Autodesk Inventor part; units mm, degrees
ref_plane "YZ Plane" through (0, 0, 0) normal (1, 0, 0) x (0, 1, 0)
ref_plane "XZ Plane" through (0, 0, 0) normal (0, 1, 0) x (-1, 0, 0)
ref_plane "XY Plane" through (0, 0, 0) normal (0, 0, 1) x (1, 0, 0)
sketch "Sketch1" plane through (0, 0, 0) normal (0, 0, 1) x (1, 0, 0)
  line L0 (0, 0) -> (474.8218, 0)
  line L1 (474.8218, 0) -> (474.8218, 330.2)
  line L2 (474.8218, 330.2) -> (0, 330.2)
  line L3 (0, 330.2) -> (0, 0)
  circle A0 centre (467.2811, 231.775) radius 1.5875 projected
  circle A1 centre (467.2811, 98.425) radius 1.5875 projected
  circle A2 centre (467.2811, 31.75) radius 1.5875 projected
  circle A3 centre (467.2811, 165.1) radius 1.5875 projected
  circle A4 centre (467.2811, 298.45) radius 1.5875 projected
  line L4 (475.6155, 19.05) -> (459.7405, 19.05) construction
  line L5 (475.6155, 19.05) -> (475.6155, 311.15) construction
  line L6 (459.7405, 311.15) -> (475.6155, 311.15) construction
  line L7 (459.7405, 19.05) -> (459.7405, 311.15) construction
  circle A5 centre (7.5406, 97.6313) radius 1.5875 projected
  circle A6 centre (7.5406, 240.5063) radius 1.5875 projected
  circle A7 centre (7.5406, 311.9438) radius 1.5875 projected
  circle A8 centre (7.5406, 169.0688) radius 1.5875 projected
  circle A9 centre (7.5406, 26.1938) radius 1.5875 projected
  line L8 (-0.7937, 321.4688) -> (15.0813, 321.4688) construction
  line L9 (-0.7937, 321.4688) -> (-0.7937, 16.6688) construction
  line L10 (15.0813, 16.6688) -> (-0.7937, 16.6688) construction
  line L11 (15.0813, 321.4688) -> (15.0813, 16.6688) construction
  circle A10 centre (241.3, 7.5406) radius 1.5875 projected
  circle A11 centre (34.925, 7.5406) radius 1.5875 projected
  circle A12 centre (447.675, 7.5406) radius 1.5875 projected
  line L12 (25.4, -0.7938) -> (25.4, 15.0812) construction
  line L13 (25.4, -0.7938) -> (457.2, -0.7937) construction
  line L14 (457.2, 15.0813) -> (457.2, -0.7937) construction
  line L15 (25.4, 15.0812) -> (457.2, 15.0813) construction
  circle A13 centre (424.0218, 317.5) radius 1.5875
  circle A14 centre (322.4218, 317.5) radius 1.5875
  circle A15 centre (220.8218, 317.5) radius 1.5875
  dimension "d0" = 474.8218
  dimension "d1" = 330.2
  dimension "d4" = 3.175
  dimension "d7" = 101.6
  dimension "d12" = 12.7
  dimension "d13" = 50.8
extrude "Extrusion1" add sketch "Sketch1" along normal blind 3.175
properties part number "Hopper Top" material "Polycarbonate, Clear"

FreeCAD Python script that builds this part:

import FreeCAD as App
import Part
import Sketcher
Q = App.Units.Quantity

doc = App.newDocument("Part")
body = doc.addObject("PartDesign::Body", "Body")

# Sketch on XY plane
sketch1 = body.newObject("Sketcher::SketchObject", "Sketch")
sketch1.AttachmentSupport = (doc.getObject("XY_Plane"), [""])
sketch1.MapMode = "FlatFace"
sketch1.addGeometry([
    Part.LineSegment(App.Vector(0, 330.2, 0), App.Vector(0, 0, 0)),  # 0
    Part.LineSegment(App.Vector(0, 0, 0), App.Vector(474.8, 0, 0)),  # 1
    Part.LineSegment(App.Vector(474.8, 0, 0), App.Vector(474.8, 330.2, 0)),  # 2
    Part.LineSegment(App.Vector(474.8, 330.2, 0), App.Vector(0, 330.2, 0)),  # 3
    Part.Circle(App.Vector(34.9, 7.5, 0), App.Vector(0, 0, 1), 1.6),  # 4
    Part.Circle(App.Vector(7.5, 26.2, 0), App.Vector(0, 0, 1), 1.6),  # 5
    Part.Circle(App.Vector(7.5, 97.6, 0), App.Vector(0, 0, 1), 1.6),  # 6
    Part.Circle(App.Vector(241.3, 7.5, 0), App.Vector(0, 0, 1), 1.6),  # 7
    Part.Circle(App.Vector(447.7, 7.5, 0), App.Vector(0, 0, 1), 1.6),  # 8
    Part.Circle(App.Vector(467.3, 31.8, 0), App.Vector(0, 0, 1), 1.6),  # 9
    Part.Circle(App.Vector(467.3, 98.4, 0), App.Vector(0, 0, 1), 1.6),  # 10
    Part.Circle(App.Vector(7.5, 169.1, 0), App.Vector(0, 0, 1), 1.6),  # 11
    Part.Circle(App.Vector(7.5, 240.5, 0), App.Vector(0, 0, 1), 1.6),  # 12
    Part.Circle(App.Vector(7.5, 311.9, 0), App.Vector(0, 0, 1), 1.6),  # 13
    Part.Circle(App.Vector(220.8, 317.5, 0), App.Vector(0, 0, 1), 1.6),  # 14
    Part.Circle(App.Vector(467.3, 165.1, 0), App.Vector(0, 0, 1), 1.6),  # 15
    Part.Circle(App.Vector(467.3, 231.8, 0), App.Vector(0, 0, 1), 1.6),  # 16
    Part.Circle(App.Vector(322.4, 317.5, 0), App.Vector(0, 0, 1), 1.6),  # 17
    Part.Circle(App.Vector(467.3, 298.4, 0), App.Vector(0, 0, 1), 1.6),  # 18
    Part.Circle(App.Vector(424, 317.5, 0), App.Vector(0, 0, 1), 1.6),  # 19
], False)
sketch1.addConstraint([
    Sketcher.Constraint("Coincident", 0, 2, 1, 1),
    Sketcher.Constraint("Coincident", 1, 2, 2, 1),
    Sketcher.Constraint("Coincident", 2, 2, 3, 1),
    Sketcher.Constraint("Coincident", 3, 2, 0, 1),
    Sketcher.Constraint("Vertical", 0),
    Sketcher.Constraint("Horizontal", 1),
    Sketcher.Constraint("Vertical", 2),
    Sketcher.Constraint("Horizontal", 3),
    Sketcher.Constraint("Coincident", 0, 2, -1, 1),
    Sketcher.Constraint("Equal", 4, 5),
    Sketcher.Constraint("Equal", 5, 6),
    Sketcher.Constraint("Equal", 6, 7),
    Sketcher.Constraint("Equal", 7, 8),
    Sketcher.Constraint("Equal", 8, 9),
    Sketcher.Constraint("Equal", 9, 10),
    Sketcher.Constraint("Equal", 10, 11),
    Sketcher.Constraint("Equal", 11, 12),
    Sketcher.Constraint("Equal", 12, 13),
    Sketcher.Constraint("Equal", 13, 14),
    Sketcher.Constraint("Equal", 14, 15),
    Sketcher.Constraint("Equal", 15, 16),
    Sketcher.Constraint("Equal", 16, 17),
    Sketcher.Constraint("Equal", 17, 18),
    Sketcher.Constraint("Equal", 18, 19),
    Sketcher.Constraint("Horizontal", 4, 3, 7, 3),
    Sketcher.Constraint("Horizontal", 7, 3, 8, 3),
    Sketcher.Constraint("Horizontal", 14, 3, 17, 3),
    Sketcher.Constraint("Horizontal", 17, 3, 19, 3),
    Sketcher.Constraint("Vertical", 5, 3, 6, 3),
    Sketcher.Constraint("Vertical", 9, 3, 10, 3),
    Sketcher.Constraint("Vertical", 6, 3, 11, 3),
    Sketcher.Constraint("Vertical", 11, 3, 12, 3),
    Sketcher.Constraint("Vertical", 12, 3, 13, 3),
    Sketcher.Constraint("Vertical", 10, 3, 15, 3),
    Sketcher.Constraint("Vertical", 15, 3, 16, 3),
    Sketcher.Constraint("Vertical", 16, 3, 18, 3),
    Sketcher.Constraint("DistanceY", 0, 2, 0, 1, Q("13 in")),
    Sketcher.Constraint("Diameter", 4, Q("0.125 in")),
    Sketcher.Constraint("DistanceX", 14, 3, 17, 3, Q("4 in")),
    Sketcher.Constraint("DistanceX", 17, 3, 19, 3, Q("4 in")),
    Sketcher.Constraint("DistanceX", 19, 3, 2, 2, Q("2 in")),
    Sketcher.Constraint("DistanceY", 19, 3, 2, 2, Q("0.5 in")),
    Sketcher.Constraint("DistanceY", 15, 3, 14, 3, Q("6 in")),
    Sketcher.Constraint("DistanceX", 1, 1, 1, 2, Q("474.8218 mm")),
    Sketcher.Constraint("DistanceX", -1, 1, 7, 3, Q("9.5 in")),
    Sketcher.Constraint("DistanceY", -1, 1, 9, 3, Q("1.25 in")),
    Sketcher.Constraint("DistanceY", -1, 1, 18, 3, Q("11.75 in")),
    Sketcher.Constraint("DistanceX", 4, 3, 8, 3, Q("16.25 in")),
    Sketcher.Constraint("DistanceY", 5, 3, 13, 3, Q("11.25 in")),
    Sketcher.Constraint("DistanceY", 10, 3, 16, 3, Q("5.25 in")),
    Sketcher.Constraint("DistanceX", -1, 1, 4, 3, Q("1.375 in")),
    Sketcher.Constraint("DistanceY", -1, 1, 4, 3, Q("0.296874 in")),
    Sketcher.Constraint("DistanceX", -1, 1, 5, 3, Q("0.296874 in")),
    Sketcher.Constraint("DistanceY", -1, 1, 5, 3, Q("1.031252 in")),
    Sketcher.Constraint("DistanceY", -1, 1, 6, 3, Q("3.843752 in")),
    Sketcher.Constraint("DistanceY", -1, 1, 10, 3, Q("3.875 in")),
    Sketcher.Constraint("DistanceY", -1, 1, 11, 3, Q("6.656252 in")),
    Sketcher.Constraint("DistanceY", -1, 1, 12, 3, Q("9.468752 in")),
    Sketcher.Constraint("DistanceX", 14, 3, 15, 3, Q("9.703122 in")),
])
pad1 = body.newObject("PartDesign::Pad", "Pad")
pad1.Profile = sketch1
pad1.Length = Q("0.125 in")

doc.recompute()
